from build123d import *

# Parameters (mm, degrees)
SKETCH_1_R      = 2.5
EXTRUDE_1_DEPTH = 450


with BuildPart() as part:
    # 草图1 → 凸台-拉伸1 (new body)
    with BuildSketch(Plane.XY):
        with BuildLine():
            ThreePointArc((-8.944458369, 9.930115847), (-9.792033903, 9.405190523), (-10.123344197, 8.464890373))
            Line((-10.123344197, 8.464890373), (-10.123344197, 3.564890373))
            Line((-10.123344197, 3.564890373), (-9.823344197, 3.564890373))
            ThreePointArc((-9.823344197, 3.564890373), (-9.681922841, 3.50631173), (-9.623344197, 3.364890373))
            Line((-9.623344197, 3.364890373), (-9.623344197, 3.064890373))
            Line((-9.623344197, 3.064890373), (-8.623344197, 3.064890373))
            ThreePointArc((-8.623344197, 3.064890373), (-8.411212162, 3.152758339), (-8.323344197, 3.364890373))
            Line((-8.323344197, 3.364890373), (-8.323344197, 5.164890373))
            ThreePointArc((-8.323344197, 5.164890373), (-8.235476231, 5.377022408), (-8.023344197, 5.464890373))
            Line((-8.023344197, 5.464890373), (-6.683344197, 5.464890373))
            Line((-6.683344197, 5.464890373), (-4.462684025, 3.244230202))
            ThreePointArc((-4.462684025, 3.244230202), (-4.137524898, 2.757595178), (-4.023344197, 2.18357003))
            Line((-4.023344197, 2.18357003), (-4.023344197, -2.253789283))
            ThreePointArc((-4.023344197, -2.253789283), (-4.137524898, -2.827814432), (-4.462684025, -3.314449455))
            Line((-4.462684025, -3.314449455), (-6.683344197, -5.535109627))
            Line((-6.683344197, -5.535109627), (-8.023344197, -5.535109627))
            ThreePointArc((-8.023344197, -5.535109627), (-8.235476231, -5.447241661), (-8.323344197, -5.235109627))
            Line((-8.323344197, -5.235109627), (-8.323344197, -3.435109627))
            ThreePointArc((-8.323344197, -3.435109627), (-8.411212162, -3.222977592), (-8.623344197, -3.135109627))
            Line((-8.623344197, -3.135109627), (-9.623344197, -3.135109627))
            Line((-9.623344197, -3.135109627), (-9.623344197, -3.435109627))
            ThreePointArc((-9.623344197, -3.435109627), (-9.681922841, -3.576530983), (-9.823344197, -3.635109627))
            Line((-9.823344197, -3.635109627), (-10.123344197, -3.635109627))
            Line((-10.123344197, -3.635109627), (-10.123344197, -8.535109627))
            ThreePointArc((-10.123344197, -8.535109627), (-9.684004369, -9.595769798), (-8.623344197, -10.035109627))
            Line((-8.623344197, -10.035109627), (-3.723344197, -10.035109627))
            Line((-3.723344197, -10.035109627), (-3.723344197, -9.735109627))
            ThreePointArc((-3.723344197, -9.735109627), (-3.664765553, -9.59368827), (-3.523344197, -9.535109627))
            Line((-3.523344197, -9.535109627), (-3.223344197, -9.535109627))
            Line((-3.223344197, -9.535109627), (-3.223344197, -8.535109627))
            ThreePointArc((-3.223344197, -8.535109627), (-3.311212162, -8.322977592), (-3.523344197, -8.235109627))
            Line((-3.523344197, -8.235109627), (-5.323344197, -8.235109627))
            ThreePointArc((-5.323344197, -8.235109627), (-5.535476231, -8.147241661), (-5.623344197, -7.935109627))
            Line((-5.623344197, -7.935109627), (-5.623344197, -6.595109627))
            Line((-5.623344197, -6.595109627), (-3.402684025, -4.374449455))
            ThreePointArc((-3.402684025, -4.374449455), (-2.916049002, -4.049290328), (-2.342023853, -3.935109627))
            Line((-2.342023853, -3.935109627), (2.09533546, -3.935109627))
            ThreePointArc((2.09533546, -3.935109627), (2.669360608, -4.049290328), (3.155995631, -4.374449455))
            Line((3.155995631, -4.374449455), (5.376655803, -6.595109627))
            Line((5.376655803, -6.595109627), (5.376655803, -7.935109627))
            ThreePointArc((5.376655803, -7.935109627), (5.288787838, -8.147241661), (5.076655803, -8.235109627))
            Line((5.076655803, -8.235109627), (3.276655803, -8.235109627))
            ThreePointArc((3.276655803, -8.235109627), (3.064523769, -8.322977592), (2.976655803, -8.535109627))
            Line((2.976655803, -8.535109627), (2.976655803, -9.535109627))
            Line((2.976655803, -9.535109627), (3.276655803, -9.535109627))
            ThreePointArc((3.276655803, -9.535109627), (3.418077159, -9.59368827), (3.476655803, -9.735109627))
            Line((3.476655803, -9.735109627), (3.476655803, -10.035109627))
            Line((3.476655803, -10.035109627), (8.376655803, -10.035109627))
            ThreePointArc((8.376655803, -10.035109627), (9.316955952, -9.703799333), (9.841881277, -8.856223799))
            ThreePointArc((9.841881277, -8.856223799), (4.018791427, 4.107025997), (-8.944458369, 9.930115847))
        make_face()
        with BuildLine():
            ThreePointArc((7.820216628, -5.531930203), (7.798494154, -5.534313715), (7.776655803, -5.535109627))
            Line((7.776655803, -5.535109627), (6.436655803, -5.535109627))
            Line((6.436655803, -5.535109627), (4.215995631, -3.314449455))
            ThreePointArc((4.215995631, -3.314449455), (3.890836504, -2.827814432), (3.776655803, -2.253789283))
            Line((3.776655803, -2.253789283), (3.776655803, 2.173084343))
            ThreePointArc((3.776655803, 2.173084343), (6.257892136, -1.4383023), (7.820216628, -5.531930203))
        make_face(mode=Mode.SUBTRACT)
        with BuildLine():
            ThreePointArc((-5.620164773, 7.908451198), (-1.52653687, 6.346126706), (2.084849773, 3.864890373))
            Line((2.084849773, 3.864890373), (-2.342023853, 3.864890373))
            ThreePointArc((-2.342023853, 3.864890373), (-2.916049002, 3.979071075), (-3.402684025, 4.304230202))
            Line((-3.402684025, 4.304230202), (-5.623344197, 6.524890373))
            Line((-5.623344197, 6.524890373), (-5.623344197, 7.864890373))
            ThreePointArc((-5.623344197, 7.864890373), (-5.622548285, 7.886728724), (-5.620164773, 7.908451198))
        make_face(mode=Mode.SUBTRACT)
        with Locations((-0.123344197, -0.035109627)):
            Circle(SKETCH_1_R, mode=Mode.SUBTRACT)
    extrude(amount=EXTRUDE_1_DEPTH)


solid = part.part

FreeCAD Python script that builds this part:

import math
import FreeCAD as App
import Part
import Sketcher

V = App.Vector
Q = App.Units.Quantity

doc = App.newDocument("Part")
body = doc.addObject("PartDesign::Body", "Body")

sketch1 = body.newObject("Sketcher::SketchObject", "Sketch")
sketch1.AttachmentSupport = (doc.getObject("XY_Plane"), [""])
sketch1.MapMode = "FlatFace"
sketch1.addGeometry([
    Part.ArcOfCircle(Part.Circle(V(-8.623, 8.465, 0), V(0, 0, 1), 1.5), math.radians(102), math.radians(180)),
    Part.LineSegment(V(-10.123, 8.465, 0), V(-10.123, 3.565, 0)),
    Part.LineSegment(V(-10.123, 3.565, 0), V(-9.823, 3.565, 0)),
    Part.ArcOfCircle(Part.Circle(V(-9.823, 3.365, 0), V(0, 0, 1), 0.2), math.radians(0), math.radians(90)),
    Part.LineSegment(V(-9.623, 3.365, 0), V(-9.623, 3.065, 0)),
    Part.LineSegment(V(-9.623, 3.065, 0), V(-8.623, 3.065, 0)),
    Part.ArcOfCircle(Part.Circle(V(-8.623, 3.365, 0), V(0, 0, 1), 0.3), math.radians(-90), math.radians(0)),
    Part.LineSegment(V(-8.323, 3.365, 0), V(-8.323, 5.165, 0)),
    Part.ArcOfCircle(Part.Circle(V(-8.023, 5.165, 0), V(0, 0, 1), 0.3), math.radians(90), math.radians(180)),
    Part.LineSegment(V(-8.023, 5.465, 0), V(-6.683, 5.465, 0)),
    Part.LineSegment(V(-6.683, 5.465, 0), V(-4.463, 3.244, 0)),
    Part.ArcOfCircle(Part.Circle(V(-5.523, 2.184, 0), V(0, 0, 1), 1.5), math.radians(0), math.radians(45)),
    Part.LineSegment(V(-4.023, 2.184, 0), V(-4.023, -2.254, 0)),
    Part.ArcOfCircle(Part.Circle(V(-5.523, -2.254, 0), V(0, 0, 1), 1.5), math.radians(-45), math.radians(0)),
    Part.LineSegment(V(-4.463, -3.314, 0), V(-6.683, -5.535, 0)),
    Part.LineSegment(V(-6.683, -5.535, 0), V(-8.023, -5.535, 0)),
    Part.ArcOfCircle(Part.Circle(V(-8.023, -5.235, 0), V(0, 0, 1), 0.3), math.radians(-180), math.radians(-90)),
    Part.LineSegment(V(-8.323, -5.235, 0), V(-8.323, -3.435, 0)),
    Part.ArcOfCircle(Part.Circle(V(-8.623, -3.435, 0), V(0, 0, 1), 0.3), math.radians(0), math.radians(90)),
    Part.LineSegment(V(-8.623, -3.135, 0), V(-9.623, -3.135, 0)),
    Part.LineSegment(V(-9.623, -3.135, 0), V(-9.623, -3.435, 0)),
    Part.ArcOfCircle(Part.Circle(V(-9.823, -3.435, 0), V(0, 0, 1), 0.2), math.radians(-90), math.radians(0)),
    Part.LineSegment(V(-9.823, -3.635, 0), V(-10.123, -3.635, 0)),
    Part.LineSegment(V(-10.123, -3.635, 0), V(-10.123, -8.535, 0)),
    Part.ArcOfCircle(Part.Circle(V(-8.623, -8.535, 0), V(0, 0, 1), 1.5), math.radians(-180), math.radians(-90)),
    Part.LineSegment(V(-8.623, -10.035, 0), V(-3.723, -10.035, 0)),
    Part.LineSegment(V(-3.723, -10.035, 0), V(-3.723, -9.735, 0)),
    Part.ArcOfCircle(Part.Circle(V(-3.523, -9.735, 0), V(0, 0, 1), 0.2), math.radians(90), math.radians(180)),
    Part.LineSegment(V(-3.523, -9.535, 0), V(-3.223, -9.535, 0)),
    Part.LineSegment(V(-3.223, -9.535, 0), V(-3.223, -8.535, 0)),
    Part.ArcOfCircle(Part.Circle(V(-3.523, -8.535, 0), V(0, 0, 1), 0.3), math.radians(0), math.radians(90)),
    Part.LineSegment(V(-3.523, -8.235, 0), V(-5.323, -8.235, 0)),
    Part.ArcOfCircle(Part.Circle(V(-5.323, -7.935, 0), V(0, 0, 1), 0.3), math.radians(-180), math.radians(-90)),
    Part.LineSegment(V(-5.623, -7.935, 0), V(-5.623, -6.595, 0)),
    Part.LineSegment(V(-5.623, -6.595, 0), V(-3.403, -4.374, 0)),
    Part.ArcOfCircle(Part.Circle(V(-2.342, -5.435, 0), V(0, 0, 1), 1.5), math.radians(90), math.radians(135)),
    Part.LineSegment(V(-2.342, -3.935, 0), V(2.095, -3.935, 0)),
    Part.ArcOfCircle(Part.Circle(V(2.095, -5.435, 0), V(0, 0, 1), 1.5), math.radians(45), math.radians(90)),
    Part.LineSegment(V(3.156, -4.374, 0), V(5.377, -6.595, 0)),
    Part.LineSegment(V(5.377, -6.595, 0), V(5.377, -7.935, 0)),
    Part.ArcOfCircle(Part.Circle(V(5.077, -7.935, 0), V(0, 0, 1), 0.3), math.radians(-90), math.radians(0)),
    Part.LineSegment(V(5.077, -8.235, 0), V(3.277, -8.235, 0)),
    Part.ArcOfCircle(Part.Circle(V(3.277, -8.535, 0), V(0, 0, 1), 0.3), math.radians(90), math.radians(180)),
    Part.LineSegment(V(2.977, -8.535, 0), V(2.977, -9.535, 0)),
    Part.LineSegment(V(2.977, -9.535, 0), V(3.277, -9.535, 0)),
    Part.ArcOfCircle(Part.Circle(V(3.277, -9.735, 0), V(0, 0, 1), 0.2), math.radians(0), math.radians(90)),
    Part.LineSegment(V(3.477, -9.735, 0), V(3.477, -10.035, 0)),
    Part.LineSegment(V(3.477, -10.035, 0), V(8.377, -10.035, 0)),
    Part.ArcOfCircle(Part.Circle(V(8.377, -8.535, 0), V(0, 0, 1), 1.5), math.radians(-90), math.radians(-12)),
    Part.ArcOfCircle(Part.Circle(V(-10.123, -10.035, 0), V(0, 0, 1), 20), math.radians(3), math.radians(87)),
    Part.Circle(V(-0.123, -0.035, 0), V(0, 0, 1), 2.5),
    Part.ArcOfCircle(Part.Circle(V(-10.123, -10.035, 0), V(0, 0, 1), 18.5), math.radians(14), math.radians(41)),
    Part.ArcOfCircle(Part.Circle(V(7.777, -5.235, 0), V(0, 0, 1), 0.3), math.radians(-90), math.radians(-81.65)),
    Part.LineSegment(V(7.777, -5.535, 0), V(6.437, -5.535, 0)),
    Part.LineSegment(V(6.437, -5.535, 0), V(4.216, -3.314, 0)),
    Part.ArcOfCircle(Part.Circle(V(5.277, -2.254, 0), V(0, 0, 1), 1.5), math.radians(180), math.radians(225)),
    Part.LineSegment(V(3.777, -2.254, 0), V(3.777, 2.173, 0)),
    Part.ArcOfCircle(Part.Circle(V(-5.323, 7.865, 0), V(0, 0, 1), 0.3), math.radians(171.65), math.radians(180)),
    Part.ArcOfCircle(Part.Circle(V(-10.123, -10.035, 0), V(0, 0, 1), 18.5), math.radians(49), math.radians(76)),
    Part.LineSegment(V(2.085, 3.865, 0), V(-2.342, 3.865, 0)),
    Part.ArcOfCircle(Part.Circle(V(-2.342, 5.365, 0), V(0, 0, 1), 1.5), math.radians(-135), math.radians(-90)),
    Part.LineSegment(V(-3.403, 4.304, 0), V(-5.623, 6.525, 0)),
    Part.LineSegment(V(-5.623, 6.525, 0), V(-5.623, 7.865, 0)),
], False)
sketch1.addConstraint([
    Sketcher.Constraint("Tangent", 0, 2, 1, 1),
    Sketcher.Constraint("Coincident", 1, 2, 2, 1),
    Sketcher.Constraint("Tangent", 2, 2, 3, 2),
    Sketcher.Constraint("Tangent", 3, 1, 4, 1),
    Sketcher.Constraint("Coincident", 4, 2, 5, 1),
    Sketcher.Constraint("Tangent", 5, 2, 6, 1),
    Sketcher.Constraint("Tangent", 6, 2, 7, 1),
    Sketcher.Constraint("Tangent", 7, 2, 8, 2),
    Sketcher.Constraint("Tangent", 8, 1, 9, 1),
    Sketcher.Constraint("Coincident", 9, 2, 10, 1),
    Sketcher.Constraint("Tangent", 10, 2, 11, 2),
    Sketcher.Constraint("Tangent", 11, 1, 12, 1),
    Sketcher.Constraint("Tangent", 12, 2, 13, 2),
    Sketcher.Constraint("Tangent", 13, 1, 14, 1),
    Sketcher.Constraint("Coincident", 14, 2, 15, 1),
    Sketcher.Constraint("Tangent", 15, 2, 16, 2),
    Sketcher.Constraint("Tangent", 16, 1, 17, 1),
    Sketcher.Constraint("Tangent", 17, 2, 18, 1),
    Sketcher.Constraint("Tangent", 18, 2, 19, 1),
    Sketcher.Constraint("Coincident", 19, 2, 20, 1),
    Sketcher.Constraint("Tangent", 20, 2, 21, 2),
    Sketcher.Constraint("Tangent", 21, 1, 22, 1),
    Sketcher.Constraint("Coincident", 22, 2, 23, 1),
    Sketcher.Constraint("Tangent", 23, 2, 24, 1),
    Sketcher.Constraint("Tangent", 24, 2, 25, 1),
    Sketcher.Constraint("Coincident", 25, 2, 26, 1),
    Sketcher.Constraint("Tangent", 26, 2, 27, 2),
    Sketcher.Constraint("Tangent", 27, 1, 28, 1),
    Sketcher.Constraint("Coincident", 28, 2, 29, 1),
    Sketcher.Constraint("Tangent", 29, 2, 30, 1),
    Sketcher.Constraint("Tangent", 30, 2, 31, 1),
    Sketcher.Constraint("Tangent", 31, 2, 32, 2),
    Sketcher.Constraint("Tangent", 32, 1, 33, 1),
    Sketcher.Constraint("Coincident", 33, 2, 34, 1),
    Sketcher.Constraint("Tangent", 34, 2, 35, 2),
    Sketcher.Constraint("Tangent", 35, 1, 36, 1),
    Sketcher.Constraint("Tangent", 36, 2, 37, 2),
    Sketcher.Constraint("Tangent", 37, 1, 38, 1),
    Sketcher.Constraint("Coincident", 38, 2, 39, 1),
    Sketcher.Constraint("Tangent", 39, 2, 40, 2),
    Sketcher.Constraint("Tangent", 40, 1, 41, 1),
    Sketcher.Constraint("Tangent", 41, 2, 42, 1),
    Sketcher.Constraint("Tangent", 42, 2, 43, 1),
    Sketcher.Constraint("Coincident", 43, 2, 44, 1),
    Sketcher.Constraint("Tangent", 44, 2, 45, 2),
    Sketcher.Constraint("Tangent", 45, 1, 46, 1),
    Sketcher.Constraint("Coincident", 46, 2, 47, 1),
    Sketcher.Constraint("Tangent", 47, 2, 48, 1),
    Sketcher.Constraint("Coincident", 48, 2, 49, 1),
    Sketcher.Constraint("Coincident", 49, 2, 0, 1),
    Sketcher.Constraint("Coincident", 51, 1, 52, 2),
    Sketcher.Constraint("Tangent", 52, 1, 53, 1),
    Sketcher.Constraint("Coincident", 53, 2, 54, 1),
    Sketcher.Constraint("Tangent", 54, 2, 55, 2),
    Sketcher.Constraint("Tangent", 55, 1, 56, 1),
    Sketcher.Constraint("Coincident", 56, 2, 51, 2),
    Sketcher.Constraint("Coincident", 57, 1, 58, 2),
    Sketcher.Constraint("Coincident", 58, 1, 59, 1),
    Sketcher.Constraint("Tangent", 59, 2, 60, 2),
    Sketcher.Constraint("Tangent", 60, 1, 61, 1),
    Sketcher.Constraint("Coincident", 61, 2, 62, 1),
    Sketcher.Constraint("Tangent", 62, 2, 57, 2),
    Sketcher.Constraint("Vertical", 1),
    Sketcher.Constraint("Horizontal", 2),
    Sketcher.Constraint("Vertical", 4),
    Sketcher.Constraint("Horizontal", 5),
    Sketcher.Constraint("Vertical", 7),
    Sketcher.Constraint("Horizontal", 9),
    Sketcher.Constraint("Vertical", 12),
    Sketcher.Constraint("Horizontal", 15),
    Sketcher.Constraint("Vertical", 17),
    Sketcher.Constraint("Horizontal", 19),
    Sketcher.Constraint("Vertical", 20),
    Sketcher.Constraint("Horizontal", 22),
    Sketcher.Constraint("Vertical", 23),
    Sketcher.Constraint("Horizontal", 25),
    Sketcher.Constraint("Vertical", 26),
    Sketcher.Constraint("Horizontal", 28),
    Sketcher.Constraint("Vertical", 29),
    Sketcher.Constraint("Horizontal", 31),
    Sketcher.Constraint("Vertical", 33),
    Sketcher.Constraint("Horizontal", 36),
    Sketcher.Constraint("Vertical", 39),
    Sketcher.Constraint("Horizontal", 41),
    Sketcher.Constraint("Vertical", 43),
    Sketcher.Constraint("Horizontal", 44),
    Sketcher.Constraint("Vertical", 46),
    Sketcher.Constraint("Horizontal", 47),
    Sketcher.Constraint("Horizontal", 53),
    Sketcher.Constraint("Vertical", 56),
    Sketcher.Constraint("Horizontal", 59),
    Sketcher.Constraint("Vertical", 62),
    Sketcher.Constraint("Coincident", 51, 3, 49, 3),
    Sketcher.Constraint("Coincident", 58, 3, 49, 3),
    Sketcher.Constraint("Equal", 6, 8),
    Sketcher.Constraint("Equal", 0, 11),
    Sketcher.Constraint("Equal", 11, 13),
    Sketcher.Constraint("Equal", 8, 16),
    Sketcher.Constraint("Equal", 16, 18),
    Sketcher.Constraint("Equal", 3, 21),
    Sketcher.Constraint("Equal", 13, 24),
    Sketcher.Constraint("Equal", 21, 27),
    Sketcher.Constraint("Equal", 18, 30),
    Sketcher.Constraint("Equal", 30, 32),
    Sketcher.Constraint("Equal", 24, 35),
    Sketcher.Constraint("Equal", 35, 37),
    Sketcher.Constraint("Equal", 32, 40),
    Sketcher.Constraint("Equal", 40, 42),
    Sketcher.Constraint("Equal", 27, 45),
    Sketcher.Constraint("Equal", 37, 48),
    Sketcher.Constraint("Equal", 42, 52),
    Sketcher.Constraint("Equal", 48, 55),
    Sketcher.Constraint("Equal", 52, 57),
    Sketcher.Constraint("Equal", 51, 58),
    Sketcher.Constraint("Equal", 55, 60),
    Sketcher.Constraint("Perpendicular", 10, 14),
    Sketcher.Constraint("Parallel", 14, 34),
    Sketcher.Constraint("Perpendicular", 34, 38),
    Sketcher.Constraint("Parallel", 38, 54),
    Sketcher.Constraint("Parallel", 54, 61),
    Sketcher.Constraint("Horizontal", 3, 3, 6, 3),
    Sketcher.Constraint("Horizontal", 18, 3, 21, 3),
    Sketcher.Constraint("Horizontal", 24, 3, 30, 3),
    Sketcher.Constraint("Horizontal", 32, 3, 40, 3),
    Sketcher.Constraint("Horizontal", 27, 3, 45, 3),
    Sketcher.Constraint("Horizontal", 42, 3, 48, 3),
    Sketcher.Constraint("Horizontal", 16, 3, 52, 3),
    Sketcher.Constraint("Horizontal", 13, 3, 55, 3),
    Sketcher.Constraint("Horizontal", 58, 3, 24, 2),
    Sketcher.Constraint("Horizontal", 34, 2, 37, 1),
    Sketcher.Constraint("Horizontal", 33, 2, 38, 2),
    Sketcher.Constraint("Vertical", 0, 3, 6, 3),
    Sketcher.Constraint("Vertical", 8, 3, 16, 3),
    Sketcher.Constraint("Vertical", 3, 3, 21, 3),
    Sketcher.Constraint("Vertical", 18, 3, 24, 3),
    Sketcher.Constraint("Vertical", 27, 3, 30, 3),
    Sketcher.Constraint("Vertical", 42, 3, 45, 3),
    Sketcher.Constraint("Vertical", 32, 3, 57, 3),
    Sketcher.Constraint("Vertical", 35, 3, 60, 3),
    Sketcher.Constraint("Vertical", 58, 3, 0, 2),
    Sketcher.Constraint("Vertical", 9, 2, 14, 2),
    Sketcher.Constraint("Equal", 22, 28),
    Sketcher.Constraint("Equal", 31, 41),
    Sketcher.Constraint("Equal", 25, 47),
    Sketcher.Constraint("Equal", 15, 53),
    Sketcher.Constraint("Equal", 47, 1),
    Sketcher.Constraint("Equal", 41, 7),
    Sketcher.Constraint("Equal", 36, 12),
    Sketcher.Constraint("Equal", 7, 17),
    Sketcher.Constraint("Equal", 1, 23),
    Sketcher.Constraint("Equal", 20, 26),
    Sketcher.Constraint("Equal", 53, 33),
    Sketcher.Constraint("Equal", 59, 56),
    Sketcher.Constraint("Equal", 39, 62),
    Sketcher.Constraint("Equal", 14, 34),
    Sketcher.Constraint("Diameter", 50, Q("5 mm")),
    Sketcher.Constraint("Radius", 49, Q("20 mm")),
    Sketcher.Constraint("Radius", 0, Q("1.5 mm")),
    Sketcher.Constraint("Radius", 3, Q("0.2 mm")),
    Sketcher.Constraint("Radius", 6, Q("0.3 mm")),
    Sketcher.Constraint("Radius", 51, Q("18.5 mm")),
    Sketcher.Constraint("DistanceX", 25, 1, 25, 2, Q("4.9 mm")),
    Sketcher.Constraint("DistanceX", 31, 2, 31, 1, Q("1.8 mm")),
    Sketcher.Constraint("DistanceX", 9, 1, 9, 2, Q("1.34 mm")),
    Sketcher.Constraint("DistanceX", 36, 1, 36, 2, Q("4.437359 mm")),
    Sketcher.Constraint("DistanceX", 59, 2, 59, 1, Q("4.426874 mm")),
    Sketcher.Constraint("DistanceY", -1, 1, 0, 3, Q("8.46489 mm")),
    Sketcher.Constraint("DistanceY", -1, 1, 11, 3, Q("2.18357 mm")),
    Sketcher.Constraint("DistanceY", 50, 3, -1, 1, Q("0.03511 mm")),
    Sketcher.Constraint("DistanceX", -1, 1, 48, 2, Q("9.841881 mm")),
    Sketcher.Constraint("DistanceX", 50, 3, -1, 1, Q("0.123344 mm")),
])
pad1 = body.newObject("PartDesign::Pad", "Pad")
pad1.Profile = sketch1
pad1.Length = 450

doc.recompute()
